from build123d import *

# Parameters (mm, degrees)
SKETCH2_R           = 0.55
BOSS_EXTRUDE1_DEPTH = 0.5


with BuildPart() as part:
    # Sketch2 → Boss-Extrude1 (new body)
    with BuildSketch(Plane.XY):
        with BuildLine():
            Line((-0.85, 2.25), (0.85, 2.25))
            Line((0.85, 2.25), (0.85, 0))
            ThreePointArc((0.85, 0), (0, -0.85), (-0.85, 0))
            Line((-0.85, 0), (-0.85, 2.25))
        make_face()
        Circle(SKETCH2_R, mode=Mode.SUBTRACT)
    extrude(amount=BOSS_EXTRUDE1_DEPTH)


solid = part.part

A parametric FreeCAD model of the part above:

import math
import FreeCAD as App
import Part
import Sketcher

doc = App.newDocument("Part")
body = doc.addObject("PartDesign::Body", "Body")

# Sketch on XY plane
sketch1 = body.newObject("Sketcher::SketchObject", "Sketch")
sketch1.AttachmentSupport = (doc.getObject("XY_Plane"), [""])
sketch1.MapMode = "FlatFace"
sketch1.addGeometry(Part.LineSegment(App.Vector(0.8, 2.2, 0), App.Vector(-0.8, 2.2, 0)), False)
sketch1.addGeometry(Part.LineSegment(App.Vector(-0.8, 2.2, 0), App.Vector(-0.8, 0, 0)), False)
sketch1.addGeometry(Part.ArcOfCircle(Part.Circle(App.Vector(0, 0, 0), App.Vector(0, 0, 1), 0.8), math.radians(180), math.radians(360)), False)
sketch1.addGeometry(Part.LineSegment(App.Vector(0.8, 0, 0), App.Vector(0.8, 2.2, 0)), False)
sketch1.addGeometry(Part.Circle(App.Vector(0, 0, 0), App.Vector(0, 0, 1), 0.6), False)
sketch1.addConstraint(Sketcher.Constraint("Coincident", 0, 2, 1, 1))
sketch1.addConstraint(Sketcher.Constraint("Tangent", 1, 2, 2, 1))
sketch1.addConstraint(Sketcher.Constraint("Tangent", 2, 2, 3, 1))
sketch1.addConstraint(Sketcher.Constraint("Coincident", 3, 2, 0, 1))
sketch1.addConstraint(Sketcher.Constraint("Horizontal", 0))
sketch1.addConstraint(Sketcher.Constraint("Vertical", 1))
sketch1.addConstraint(Sketcher.Constraint("Vertical", 3))
sketch1.addConstraint(Sketcher.Constraint("Coincident", 2, 3, -1, 1))
sketch1.addConstraint(Sketcher.Constraint("Coincident", 4, 3, -1, 1))
sketch1.addConstraint(Sketcher.Constraint("Diameter", 4, 1.1))
sketch1.addConstraint(Sketcher.Constraint("Radius", 2, 0.85))
sketch1.addConstraint(Sketcher.Constraint("DistanceY", 1, 2, 1, 1, 2.25))
pad1 = body.newObject("PartDesign::Pad", "Pad")
pad1.Profile = sketch1
pad1.Length = 0.5

doc.recompute()
